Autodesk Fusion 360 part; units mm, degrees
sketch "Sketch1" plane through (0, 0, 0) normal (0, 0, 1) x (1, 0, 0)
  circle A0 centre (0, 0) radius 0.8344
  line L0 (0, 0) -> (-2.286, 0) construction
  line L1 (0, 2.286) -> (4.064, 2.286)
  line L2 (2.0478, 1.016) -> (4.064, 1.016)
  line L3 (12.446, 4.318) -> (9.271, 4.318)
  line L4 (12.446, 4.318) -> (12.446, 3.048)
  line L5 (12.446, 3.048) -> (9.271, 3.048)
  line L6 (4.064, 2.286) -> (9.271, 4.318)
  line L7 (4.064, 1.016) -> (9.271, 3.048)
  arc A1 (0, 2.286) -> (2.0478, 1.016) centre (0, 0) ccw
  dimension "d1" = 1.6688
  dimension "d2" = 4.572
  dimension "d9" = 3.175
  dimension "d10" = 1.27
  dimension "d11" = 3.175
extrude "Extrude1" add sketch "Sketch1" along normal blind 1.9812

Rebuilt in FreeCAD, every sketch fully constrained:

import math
import FreeCAD as App
import Part
import Sketcher

V = App.Vector
Q = App.Units.Quantity

doc = App.newDocument("Part")
params = doc.addObject("Spreadsheet::Sheet", "Params")
for row, (alias, value) in enumerate([
    ("sketch1_radius", "0.09 in"),
    ("sketch1_height", "0.05 in"),
    ("sketch1_width", "0.125 in"),
    ("sketch1_width2", "0.16 in"),
    ("pad1_length", "0.078 in"),
], start=1):
    params.set(f"A{row}", alias)
    params.set(f"B{row}", "=" + value)
    params.setAlias(f"B{row}", alias)

body = doc.addObject("PartDesign::Body", "Body")

sketch1 = body.newObject("Sketcher::SketchObject", "Sketch")
sketch1.AttachmentSupport = (doc.getObject("XY_Plane"), [""])
sketch1.MapMode = "FlatFace"
sketch1.addGeometry(Part.LineSegment(V(4.1, 2.3, 0), V(0, 2.3, 0)), False)
sketch1.addGeometry(Part.ArcOfCircle(Part.Circle(V(0, 0, 0), V(0, 0, 1), 2.3), math.radians(90), math.radians(386)), False)
sketch1.addGeometry(Part.LineSegment(V(2, 1, 0), V(4.1, 1, 0)), False)
sketch1.addGeometry(Part.LineSegment(V(4.1, 1, 0), V(9.3, 3, 0)), False)
sketch1.addGeometry(Part.LineSegment(V(9.3, 3, 0), V(12.4, 3, 0)), False)
sketch1.addGeometry(Part.LineSegment(V(12.4, 3, 0), V(12.4, 4.3, 0)), False)
sketch1.addGeometry(Part.LineSegment(V(12.4, 4.3, 0), V(9.3, 4.3, 0)), False)
sketch1.addGeometry(Part.LineSegment(V(9.3, 4.3, 0), V(4.1, 2.3, 0)), False)
sketch1.addGeometry(Part.Circle(V(0, 0, 0), V(0, 0, 1), 0.8), False)
sketch1.addConstraint(Sketcher.Constraint("Tangent", 0, 2, 1, 1))
sketch1.addConstraint(Sketcher.Constraint("Coincident", 1, 2, 2, 1))
sketch1.addConstraint(Sketcher.Constraint("Coincident", 2, 2, 3, 1))
sketch1.addConstraint(Sketcher.Constraint("Coincident", 3, 2, 4, 1))
sketch1.addConstraint(Sketcher.Constraint("Coincident", 4, 2, 5, 1))
sketch1.addConstraint(Sketcher.Constraint("Coincident", 5, 2, 6, 1))
sketch1.addConstraint(Sketcher.Constraint("Coincident", 6, 2, 7, 1))
sketch1.addConstraint(Sketcher.Constraint("Coincident", 7, 2, 0, 1))
sketch1.addConstraint(Sketcher.Constraint("Horizontal", 0))
sketch1.addConstraint(Sketcher.Constraint("Horizontal", 2))
sketch1.addConstraint(Sketcher.Constraint("Horizontal", 4))
sketch1.addConstraint(Sketcher.Constraint("Vertical", 5))
sketch1.addConstraint(Sketcher.Constraint("Horizontal", 6))
sketch1.addConstraint(Sketcher.Constraint("Coincident", 1, 3, -1, 1))
sketch1.addConstraint(Sketcher.Constraint("Coincident", 8, 3, -1, 1))
sketch1.addConstraint(Sketcher.Constraint("Parallel", 3, 7))
sketch1.addConstraint(Sketcher.Constraint("Vertical", 3, 2, 6, 2))
sketch1.addConstraint(Sketcher.Constraint("Vertical", 2, 2, 7, 2))
sketch1.addConstraint(Sketcher.Constraint("Radius", 1, Q("0.09 in")))
sketch1.addConstraint(Sketcher.Constraint("Diameter", 8, Q("0.0657 in")))
sketch1.addConstraint(Sketcher.Constraint("DistanceY", 5, 1, 5, 2, Q("0.05 in")))
sketch1.addConstraint(Sketcher.Constraint("DistanceX", 4, 1, 4, 2, Q("0.125 in")))
sketch1.addConstraint(Sketcher.Constraint("DistanceX", 0, 2, 0, 1, Q("0.16 in")))
sketch1.addConstraint(Sketcher.Constraint("DistanceY", -1, 1, 3, 2, Q("0.12 in")))
sketch1.addConstraint(Sketcher.Constraint("DistanceX", -1, 1, 4, 2, Q("0.49 in")))
sketch1.setExpression("Constraints[18]", "Params.sketch1_radius")
sketch1.setExpression("Constraints[20]", "Params.sketch1_height")
sketch1.setExpression("Constraints[21]", "Params.sketch1_width")
sketch1.setExpression("Constraints[22]", "Params.sketch1_width2")
pad1 = body.newObject("PartDesign::Pad", "Pad")
pad1.Profile = sketch1
pad1.setExpression("Length", "Params.pad1_length")

doc.recompute()
